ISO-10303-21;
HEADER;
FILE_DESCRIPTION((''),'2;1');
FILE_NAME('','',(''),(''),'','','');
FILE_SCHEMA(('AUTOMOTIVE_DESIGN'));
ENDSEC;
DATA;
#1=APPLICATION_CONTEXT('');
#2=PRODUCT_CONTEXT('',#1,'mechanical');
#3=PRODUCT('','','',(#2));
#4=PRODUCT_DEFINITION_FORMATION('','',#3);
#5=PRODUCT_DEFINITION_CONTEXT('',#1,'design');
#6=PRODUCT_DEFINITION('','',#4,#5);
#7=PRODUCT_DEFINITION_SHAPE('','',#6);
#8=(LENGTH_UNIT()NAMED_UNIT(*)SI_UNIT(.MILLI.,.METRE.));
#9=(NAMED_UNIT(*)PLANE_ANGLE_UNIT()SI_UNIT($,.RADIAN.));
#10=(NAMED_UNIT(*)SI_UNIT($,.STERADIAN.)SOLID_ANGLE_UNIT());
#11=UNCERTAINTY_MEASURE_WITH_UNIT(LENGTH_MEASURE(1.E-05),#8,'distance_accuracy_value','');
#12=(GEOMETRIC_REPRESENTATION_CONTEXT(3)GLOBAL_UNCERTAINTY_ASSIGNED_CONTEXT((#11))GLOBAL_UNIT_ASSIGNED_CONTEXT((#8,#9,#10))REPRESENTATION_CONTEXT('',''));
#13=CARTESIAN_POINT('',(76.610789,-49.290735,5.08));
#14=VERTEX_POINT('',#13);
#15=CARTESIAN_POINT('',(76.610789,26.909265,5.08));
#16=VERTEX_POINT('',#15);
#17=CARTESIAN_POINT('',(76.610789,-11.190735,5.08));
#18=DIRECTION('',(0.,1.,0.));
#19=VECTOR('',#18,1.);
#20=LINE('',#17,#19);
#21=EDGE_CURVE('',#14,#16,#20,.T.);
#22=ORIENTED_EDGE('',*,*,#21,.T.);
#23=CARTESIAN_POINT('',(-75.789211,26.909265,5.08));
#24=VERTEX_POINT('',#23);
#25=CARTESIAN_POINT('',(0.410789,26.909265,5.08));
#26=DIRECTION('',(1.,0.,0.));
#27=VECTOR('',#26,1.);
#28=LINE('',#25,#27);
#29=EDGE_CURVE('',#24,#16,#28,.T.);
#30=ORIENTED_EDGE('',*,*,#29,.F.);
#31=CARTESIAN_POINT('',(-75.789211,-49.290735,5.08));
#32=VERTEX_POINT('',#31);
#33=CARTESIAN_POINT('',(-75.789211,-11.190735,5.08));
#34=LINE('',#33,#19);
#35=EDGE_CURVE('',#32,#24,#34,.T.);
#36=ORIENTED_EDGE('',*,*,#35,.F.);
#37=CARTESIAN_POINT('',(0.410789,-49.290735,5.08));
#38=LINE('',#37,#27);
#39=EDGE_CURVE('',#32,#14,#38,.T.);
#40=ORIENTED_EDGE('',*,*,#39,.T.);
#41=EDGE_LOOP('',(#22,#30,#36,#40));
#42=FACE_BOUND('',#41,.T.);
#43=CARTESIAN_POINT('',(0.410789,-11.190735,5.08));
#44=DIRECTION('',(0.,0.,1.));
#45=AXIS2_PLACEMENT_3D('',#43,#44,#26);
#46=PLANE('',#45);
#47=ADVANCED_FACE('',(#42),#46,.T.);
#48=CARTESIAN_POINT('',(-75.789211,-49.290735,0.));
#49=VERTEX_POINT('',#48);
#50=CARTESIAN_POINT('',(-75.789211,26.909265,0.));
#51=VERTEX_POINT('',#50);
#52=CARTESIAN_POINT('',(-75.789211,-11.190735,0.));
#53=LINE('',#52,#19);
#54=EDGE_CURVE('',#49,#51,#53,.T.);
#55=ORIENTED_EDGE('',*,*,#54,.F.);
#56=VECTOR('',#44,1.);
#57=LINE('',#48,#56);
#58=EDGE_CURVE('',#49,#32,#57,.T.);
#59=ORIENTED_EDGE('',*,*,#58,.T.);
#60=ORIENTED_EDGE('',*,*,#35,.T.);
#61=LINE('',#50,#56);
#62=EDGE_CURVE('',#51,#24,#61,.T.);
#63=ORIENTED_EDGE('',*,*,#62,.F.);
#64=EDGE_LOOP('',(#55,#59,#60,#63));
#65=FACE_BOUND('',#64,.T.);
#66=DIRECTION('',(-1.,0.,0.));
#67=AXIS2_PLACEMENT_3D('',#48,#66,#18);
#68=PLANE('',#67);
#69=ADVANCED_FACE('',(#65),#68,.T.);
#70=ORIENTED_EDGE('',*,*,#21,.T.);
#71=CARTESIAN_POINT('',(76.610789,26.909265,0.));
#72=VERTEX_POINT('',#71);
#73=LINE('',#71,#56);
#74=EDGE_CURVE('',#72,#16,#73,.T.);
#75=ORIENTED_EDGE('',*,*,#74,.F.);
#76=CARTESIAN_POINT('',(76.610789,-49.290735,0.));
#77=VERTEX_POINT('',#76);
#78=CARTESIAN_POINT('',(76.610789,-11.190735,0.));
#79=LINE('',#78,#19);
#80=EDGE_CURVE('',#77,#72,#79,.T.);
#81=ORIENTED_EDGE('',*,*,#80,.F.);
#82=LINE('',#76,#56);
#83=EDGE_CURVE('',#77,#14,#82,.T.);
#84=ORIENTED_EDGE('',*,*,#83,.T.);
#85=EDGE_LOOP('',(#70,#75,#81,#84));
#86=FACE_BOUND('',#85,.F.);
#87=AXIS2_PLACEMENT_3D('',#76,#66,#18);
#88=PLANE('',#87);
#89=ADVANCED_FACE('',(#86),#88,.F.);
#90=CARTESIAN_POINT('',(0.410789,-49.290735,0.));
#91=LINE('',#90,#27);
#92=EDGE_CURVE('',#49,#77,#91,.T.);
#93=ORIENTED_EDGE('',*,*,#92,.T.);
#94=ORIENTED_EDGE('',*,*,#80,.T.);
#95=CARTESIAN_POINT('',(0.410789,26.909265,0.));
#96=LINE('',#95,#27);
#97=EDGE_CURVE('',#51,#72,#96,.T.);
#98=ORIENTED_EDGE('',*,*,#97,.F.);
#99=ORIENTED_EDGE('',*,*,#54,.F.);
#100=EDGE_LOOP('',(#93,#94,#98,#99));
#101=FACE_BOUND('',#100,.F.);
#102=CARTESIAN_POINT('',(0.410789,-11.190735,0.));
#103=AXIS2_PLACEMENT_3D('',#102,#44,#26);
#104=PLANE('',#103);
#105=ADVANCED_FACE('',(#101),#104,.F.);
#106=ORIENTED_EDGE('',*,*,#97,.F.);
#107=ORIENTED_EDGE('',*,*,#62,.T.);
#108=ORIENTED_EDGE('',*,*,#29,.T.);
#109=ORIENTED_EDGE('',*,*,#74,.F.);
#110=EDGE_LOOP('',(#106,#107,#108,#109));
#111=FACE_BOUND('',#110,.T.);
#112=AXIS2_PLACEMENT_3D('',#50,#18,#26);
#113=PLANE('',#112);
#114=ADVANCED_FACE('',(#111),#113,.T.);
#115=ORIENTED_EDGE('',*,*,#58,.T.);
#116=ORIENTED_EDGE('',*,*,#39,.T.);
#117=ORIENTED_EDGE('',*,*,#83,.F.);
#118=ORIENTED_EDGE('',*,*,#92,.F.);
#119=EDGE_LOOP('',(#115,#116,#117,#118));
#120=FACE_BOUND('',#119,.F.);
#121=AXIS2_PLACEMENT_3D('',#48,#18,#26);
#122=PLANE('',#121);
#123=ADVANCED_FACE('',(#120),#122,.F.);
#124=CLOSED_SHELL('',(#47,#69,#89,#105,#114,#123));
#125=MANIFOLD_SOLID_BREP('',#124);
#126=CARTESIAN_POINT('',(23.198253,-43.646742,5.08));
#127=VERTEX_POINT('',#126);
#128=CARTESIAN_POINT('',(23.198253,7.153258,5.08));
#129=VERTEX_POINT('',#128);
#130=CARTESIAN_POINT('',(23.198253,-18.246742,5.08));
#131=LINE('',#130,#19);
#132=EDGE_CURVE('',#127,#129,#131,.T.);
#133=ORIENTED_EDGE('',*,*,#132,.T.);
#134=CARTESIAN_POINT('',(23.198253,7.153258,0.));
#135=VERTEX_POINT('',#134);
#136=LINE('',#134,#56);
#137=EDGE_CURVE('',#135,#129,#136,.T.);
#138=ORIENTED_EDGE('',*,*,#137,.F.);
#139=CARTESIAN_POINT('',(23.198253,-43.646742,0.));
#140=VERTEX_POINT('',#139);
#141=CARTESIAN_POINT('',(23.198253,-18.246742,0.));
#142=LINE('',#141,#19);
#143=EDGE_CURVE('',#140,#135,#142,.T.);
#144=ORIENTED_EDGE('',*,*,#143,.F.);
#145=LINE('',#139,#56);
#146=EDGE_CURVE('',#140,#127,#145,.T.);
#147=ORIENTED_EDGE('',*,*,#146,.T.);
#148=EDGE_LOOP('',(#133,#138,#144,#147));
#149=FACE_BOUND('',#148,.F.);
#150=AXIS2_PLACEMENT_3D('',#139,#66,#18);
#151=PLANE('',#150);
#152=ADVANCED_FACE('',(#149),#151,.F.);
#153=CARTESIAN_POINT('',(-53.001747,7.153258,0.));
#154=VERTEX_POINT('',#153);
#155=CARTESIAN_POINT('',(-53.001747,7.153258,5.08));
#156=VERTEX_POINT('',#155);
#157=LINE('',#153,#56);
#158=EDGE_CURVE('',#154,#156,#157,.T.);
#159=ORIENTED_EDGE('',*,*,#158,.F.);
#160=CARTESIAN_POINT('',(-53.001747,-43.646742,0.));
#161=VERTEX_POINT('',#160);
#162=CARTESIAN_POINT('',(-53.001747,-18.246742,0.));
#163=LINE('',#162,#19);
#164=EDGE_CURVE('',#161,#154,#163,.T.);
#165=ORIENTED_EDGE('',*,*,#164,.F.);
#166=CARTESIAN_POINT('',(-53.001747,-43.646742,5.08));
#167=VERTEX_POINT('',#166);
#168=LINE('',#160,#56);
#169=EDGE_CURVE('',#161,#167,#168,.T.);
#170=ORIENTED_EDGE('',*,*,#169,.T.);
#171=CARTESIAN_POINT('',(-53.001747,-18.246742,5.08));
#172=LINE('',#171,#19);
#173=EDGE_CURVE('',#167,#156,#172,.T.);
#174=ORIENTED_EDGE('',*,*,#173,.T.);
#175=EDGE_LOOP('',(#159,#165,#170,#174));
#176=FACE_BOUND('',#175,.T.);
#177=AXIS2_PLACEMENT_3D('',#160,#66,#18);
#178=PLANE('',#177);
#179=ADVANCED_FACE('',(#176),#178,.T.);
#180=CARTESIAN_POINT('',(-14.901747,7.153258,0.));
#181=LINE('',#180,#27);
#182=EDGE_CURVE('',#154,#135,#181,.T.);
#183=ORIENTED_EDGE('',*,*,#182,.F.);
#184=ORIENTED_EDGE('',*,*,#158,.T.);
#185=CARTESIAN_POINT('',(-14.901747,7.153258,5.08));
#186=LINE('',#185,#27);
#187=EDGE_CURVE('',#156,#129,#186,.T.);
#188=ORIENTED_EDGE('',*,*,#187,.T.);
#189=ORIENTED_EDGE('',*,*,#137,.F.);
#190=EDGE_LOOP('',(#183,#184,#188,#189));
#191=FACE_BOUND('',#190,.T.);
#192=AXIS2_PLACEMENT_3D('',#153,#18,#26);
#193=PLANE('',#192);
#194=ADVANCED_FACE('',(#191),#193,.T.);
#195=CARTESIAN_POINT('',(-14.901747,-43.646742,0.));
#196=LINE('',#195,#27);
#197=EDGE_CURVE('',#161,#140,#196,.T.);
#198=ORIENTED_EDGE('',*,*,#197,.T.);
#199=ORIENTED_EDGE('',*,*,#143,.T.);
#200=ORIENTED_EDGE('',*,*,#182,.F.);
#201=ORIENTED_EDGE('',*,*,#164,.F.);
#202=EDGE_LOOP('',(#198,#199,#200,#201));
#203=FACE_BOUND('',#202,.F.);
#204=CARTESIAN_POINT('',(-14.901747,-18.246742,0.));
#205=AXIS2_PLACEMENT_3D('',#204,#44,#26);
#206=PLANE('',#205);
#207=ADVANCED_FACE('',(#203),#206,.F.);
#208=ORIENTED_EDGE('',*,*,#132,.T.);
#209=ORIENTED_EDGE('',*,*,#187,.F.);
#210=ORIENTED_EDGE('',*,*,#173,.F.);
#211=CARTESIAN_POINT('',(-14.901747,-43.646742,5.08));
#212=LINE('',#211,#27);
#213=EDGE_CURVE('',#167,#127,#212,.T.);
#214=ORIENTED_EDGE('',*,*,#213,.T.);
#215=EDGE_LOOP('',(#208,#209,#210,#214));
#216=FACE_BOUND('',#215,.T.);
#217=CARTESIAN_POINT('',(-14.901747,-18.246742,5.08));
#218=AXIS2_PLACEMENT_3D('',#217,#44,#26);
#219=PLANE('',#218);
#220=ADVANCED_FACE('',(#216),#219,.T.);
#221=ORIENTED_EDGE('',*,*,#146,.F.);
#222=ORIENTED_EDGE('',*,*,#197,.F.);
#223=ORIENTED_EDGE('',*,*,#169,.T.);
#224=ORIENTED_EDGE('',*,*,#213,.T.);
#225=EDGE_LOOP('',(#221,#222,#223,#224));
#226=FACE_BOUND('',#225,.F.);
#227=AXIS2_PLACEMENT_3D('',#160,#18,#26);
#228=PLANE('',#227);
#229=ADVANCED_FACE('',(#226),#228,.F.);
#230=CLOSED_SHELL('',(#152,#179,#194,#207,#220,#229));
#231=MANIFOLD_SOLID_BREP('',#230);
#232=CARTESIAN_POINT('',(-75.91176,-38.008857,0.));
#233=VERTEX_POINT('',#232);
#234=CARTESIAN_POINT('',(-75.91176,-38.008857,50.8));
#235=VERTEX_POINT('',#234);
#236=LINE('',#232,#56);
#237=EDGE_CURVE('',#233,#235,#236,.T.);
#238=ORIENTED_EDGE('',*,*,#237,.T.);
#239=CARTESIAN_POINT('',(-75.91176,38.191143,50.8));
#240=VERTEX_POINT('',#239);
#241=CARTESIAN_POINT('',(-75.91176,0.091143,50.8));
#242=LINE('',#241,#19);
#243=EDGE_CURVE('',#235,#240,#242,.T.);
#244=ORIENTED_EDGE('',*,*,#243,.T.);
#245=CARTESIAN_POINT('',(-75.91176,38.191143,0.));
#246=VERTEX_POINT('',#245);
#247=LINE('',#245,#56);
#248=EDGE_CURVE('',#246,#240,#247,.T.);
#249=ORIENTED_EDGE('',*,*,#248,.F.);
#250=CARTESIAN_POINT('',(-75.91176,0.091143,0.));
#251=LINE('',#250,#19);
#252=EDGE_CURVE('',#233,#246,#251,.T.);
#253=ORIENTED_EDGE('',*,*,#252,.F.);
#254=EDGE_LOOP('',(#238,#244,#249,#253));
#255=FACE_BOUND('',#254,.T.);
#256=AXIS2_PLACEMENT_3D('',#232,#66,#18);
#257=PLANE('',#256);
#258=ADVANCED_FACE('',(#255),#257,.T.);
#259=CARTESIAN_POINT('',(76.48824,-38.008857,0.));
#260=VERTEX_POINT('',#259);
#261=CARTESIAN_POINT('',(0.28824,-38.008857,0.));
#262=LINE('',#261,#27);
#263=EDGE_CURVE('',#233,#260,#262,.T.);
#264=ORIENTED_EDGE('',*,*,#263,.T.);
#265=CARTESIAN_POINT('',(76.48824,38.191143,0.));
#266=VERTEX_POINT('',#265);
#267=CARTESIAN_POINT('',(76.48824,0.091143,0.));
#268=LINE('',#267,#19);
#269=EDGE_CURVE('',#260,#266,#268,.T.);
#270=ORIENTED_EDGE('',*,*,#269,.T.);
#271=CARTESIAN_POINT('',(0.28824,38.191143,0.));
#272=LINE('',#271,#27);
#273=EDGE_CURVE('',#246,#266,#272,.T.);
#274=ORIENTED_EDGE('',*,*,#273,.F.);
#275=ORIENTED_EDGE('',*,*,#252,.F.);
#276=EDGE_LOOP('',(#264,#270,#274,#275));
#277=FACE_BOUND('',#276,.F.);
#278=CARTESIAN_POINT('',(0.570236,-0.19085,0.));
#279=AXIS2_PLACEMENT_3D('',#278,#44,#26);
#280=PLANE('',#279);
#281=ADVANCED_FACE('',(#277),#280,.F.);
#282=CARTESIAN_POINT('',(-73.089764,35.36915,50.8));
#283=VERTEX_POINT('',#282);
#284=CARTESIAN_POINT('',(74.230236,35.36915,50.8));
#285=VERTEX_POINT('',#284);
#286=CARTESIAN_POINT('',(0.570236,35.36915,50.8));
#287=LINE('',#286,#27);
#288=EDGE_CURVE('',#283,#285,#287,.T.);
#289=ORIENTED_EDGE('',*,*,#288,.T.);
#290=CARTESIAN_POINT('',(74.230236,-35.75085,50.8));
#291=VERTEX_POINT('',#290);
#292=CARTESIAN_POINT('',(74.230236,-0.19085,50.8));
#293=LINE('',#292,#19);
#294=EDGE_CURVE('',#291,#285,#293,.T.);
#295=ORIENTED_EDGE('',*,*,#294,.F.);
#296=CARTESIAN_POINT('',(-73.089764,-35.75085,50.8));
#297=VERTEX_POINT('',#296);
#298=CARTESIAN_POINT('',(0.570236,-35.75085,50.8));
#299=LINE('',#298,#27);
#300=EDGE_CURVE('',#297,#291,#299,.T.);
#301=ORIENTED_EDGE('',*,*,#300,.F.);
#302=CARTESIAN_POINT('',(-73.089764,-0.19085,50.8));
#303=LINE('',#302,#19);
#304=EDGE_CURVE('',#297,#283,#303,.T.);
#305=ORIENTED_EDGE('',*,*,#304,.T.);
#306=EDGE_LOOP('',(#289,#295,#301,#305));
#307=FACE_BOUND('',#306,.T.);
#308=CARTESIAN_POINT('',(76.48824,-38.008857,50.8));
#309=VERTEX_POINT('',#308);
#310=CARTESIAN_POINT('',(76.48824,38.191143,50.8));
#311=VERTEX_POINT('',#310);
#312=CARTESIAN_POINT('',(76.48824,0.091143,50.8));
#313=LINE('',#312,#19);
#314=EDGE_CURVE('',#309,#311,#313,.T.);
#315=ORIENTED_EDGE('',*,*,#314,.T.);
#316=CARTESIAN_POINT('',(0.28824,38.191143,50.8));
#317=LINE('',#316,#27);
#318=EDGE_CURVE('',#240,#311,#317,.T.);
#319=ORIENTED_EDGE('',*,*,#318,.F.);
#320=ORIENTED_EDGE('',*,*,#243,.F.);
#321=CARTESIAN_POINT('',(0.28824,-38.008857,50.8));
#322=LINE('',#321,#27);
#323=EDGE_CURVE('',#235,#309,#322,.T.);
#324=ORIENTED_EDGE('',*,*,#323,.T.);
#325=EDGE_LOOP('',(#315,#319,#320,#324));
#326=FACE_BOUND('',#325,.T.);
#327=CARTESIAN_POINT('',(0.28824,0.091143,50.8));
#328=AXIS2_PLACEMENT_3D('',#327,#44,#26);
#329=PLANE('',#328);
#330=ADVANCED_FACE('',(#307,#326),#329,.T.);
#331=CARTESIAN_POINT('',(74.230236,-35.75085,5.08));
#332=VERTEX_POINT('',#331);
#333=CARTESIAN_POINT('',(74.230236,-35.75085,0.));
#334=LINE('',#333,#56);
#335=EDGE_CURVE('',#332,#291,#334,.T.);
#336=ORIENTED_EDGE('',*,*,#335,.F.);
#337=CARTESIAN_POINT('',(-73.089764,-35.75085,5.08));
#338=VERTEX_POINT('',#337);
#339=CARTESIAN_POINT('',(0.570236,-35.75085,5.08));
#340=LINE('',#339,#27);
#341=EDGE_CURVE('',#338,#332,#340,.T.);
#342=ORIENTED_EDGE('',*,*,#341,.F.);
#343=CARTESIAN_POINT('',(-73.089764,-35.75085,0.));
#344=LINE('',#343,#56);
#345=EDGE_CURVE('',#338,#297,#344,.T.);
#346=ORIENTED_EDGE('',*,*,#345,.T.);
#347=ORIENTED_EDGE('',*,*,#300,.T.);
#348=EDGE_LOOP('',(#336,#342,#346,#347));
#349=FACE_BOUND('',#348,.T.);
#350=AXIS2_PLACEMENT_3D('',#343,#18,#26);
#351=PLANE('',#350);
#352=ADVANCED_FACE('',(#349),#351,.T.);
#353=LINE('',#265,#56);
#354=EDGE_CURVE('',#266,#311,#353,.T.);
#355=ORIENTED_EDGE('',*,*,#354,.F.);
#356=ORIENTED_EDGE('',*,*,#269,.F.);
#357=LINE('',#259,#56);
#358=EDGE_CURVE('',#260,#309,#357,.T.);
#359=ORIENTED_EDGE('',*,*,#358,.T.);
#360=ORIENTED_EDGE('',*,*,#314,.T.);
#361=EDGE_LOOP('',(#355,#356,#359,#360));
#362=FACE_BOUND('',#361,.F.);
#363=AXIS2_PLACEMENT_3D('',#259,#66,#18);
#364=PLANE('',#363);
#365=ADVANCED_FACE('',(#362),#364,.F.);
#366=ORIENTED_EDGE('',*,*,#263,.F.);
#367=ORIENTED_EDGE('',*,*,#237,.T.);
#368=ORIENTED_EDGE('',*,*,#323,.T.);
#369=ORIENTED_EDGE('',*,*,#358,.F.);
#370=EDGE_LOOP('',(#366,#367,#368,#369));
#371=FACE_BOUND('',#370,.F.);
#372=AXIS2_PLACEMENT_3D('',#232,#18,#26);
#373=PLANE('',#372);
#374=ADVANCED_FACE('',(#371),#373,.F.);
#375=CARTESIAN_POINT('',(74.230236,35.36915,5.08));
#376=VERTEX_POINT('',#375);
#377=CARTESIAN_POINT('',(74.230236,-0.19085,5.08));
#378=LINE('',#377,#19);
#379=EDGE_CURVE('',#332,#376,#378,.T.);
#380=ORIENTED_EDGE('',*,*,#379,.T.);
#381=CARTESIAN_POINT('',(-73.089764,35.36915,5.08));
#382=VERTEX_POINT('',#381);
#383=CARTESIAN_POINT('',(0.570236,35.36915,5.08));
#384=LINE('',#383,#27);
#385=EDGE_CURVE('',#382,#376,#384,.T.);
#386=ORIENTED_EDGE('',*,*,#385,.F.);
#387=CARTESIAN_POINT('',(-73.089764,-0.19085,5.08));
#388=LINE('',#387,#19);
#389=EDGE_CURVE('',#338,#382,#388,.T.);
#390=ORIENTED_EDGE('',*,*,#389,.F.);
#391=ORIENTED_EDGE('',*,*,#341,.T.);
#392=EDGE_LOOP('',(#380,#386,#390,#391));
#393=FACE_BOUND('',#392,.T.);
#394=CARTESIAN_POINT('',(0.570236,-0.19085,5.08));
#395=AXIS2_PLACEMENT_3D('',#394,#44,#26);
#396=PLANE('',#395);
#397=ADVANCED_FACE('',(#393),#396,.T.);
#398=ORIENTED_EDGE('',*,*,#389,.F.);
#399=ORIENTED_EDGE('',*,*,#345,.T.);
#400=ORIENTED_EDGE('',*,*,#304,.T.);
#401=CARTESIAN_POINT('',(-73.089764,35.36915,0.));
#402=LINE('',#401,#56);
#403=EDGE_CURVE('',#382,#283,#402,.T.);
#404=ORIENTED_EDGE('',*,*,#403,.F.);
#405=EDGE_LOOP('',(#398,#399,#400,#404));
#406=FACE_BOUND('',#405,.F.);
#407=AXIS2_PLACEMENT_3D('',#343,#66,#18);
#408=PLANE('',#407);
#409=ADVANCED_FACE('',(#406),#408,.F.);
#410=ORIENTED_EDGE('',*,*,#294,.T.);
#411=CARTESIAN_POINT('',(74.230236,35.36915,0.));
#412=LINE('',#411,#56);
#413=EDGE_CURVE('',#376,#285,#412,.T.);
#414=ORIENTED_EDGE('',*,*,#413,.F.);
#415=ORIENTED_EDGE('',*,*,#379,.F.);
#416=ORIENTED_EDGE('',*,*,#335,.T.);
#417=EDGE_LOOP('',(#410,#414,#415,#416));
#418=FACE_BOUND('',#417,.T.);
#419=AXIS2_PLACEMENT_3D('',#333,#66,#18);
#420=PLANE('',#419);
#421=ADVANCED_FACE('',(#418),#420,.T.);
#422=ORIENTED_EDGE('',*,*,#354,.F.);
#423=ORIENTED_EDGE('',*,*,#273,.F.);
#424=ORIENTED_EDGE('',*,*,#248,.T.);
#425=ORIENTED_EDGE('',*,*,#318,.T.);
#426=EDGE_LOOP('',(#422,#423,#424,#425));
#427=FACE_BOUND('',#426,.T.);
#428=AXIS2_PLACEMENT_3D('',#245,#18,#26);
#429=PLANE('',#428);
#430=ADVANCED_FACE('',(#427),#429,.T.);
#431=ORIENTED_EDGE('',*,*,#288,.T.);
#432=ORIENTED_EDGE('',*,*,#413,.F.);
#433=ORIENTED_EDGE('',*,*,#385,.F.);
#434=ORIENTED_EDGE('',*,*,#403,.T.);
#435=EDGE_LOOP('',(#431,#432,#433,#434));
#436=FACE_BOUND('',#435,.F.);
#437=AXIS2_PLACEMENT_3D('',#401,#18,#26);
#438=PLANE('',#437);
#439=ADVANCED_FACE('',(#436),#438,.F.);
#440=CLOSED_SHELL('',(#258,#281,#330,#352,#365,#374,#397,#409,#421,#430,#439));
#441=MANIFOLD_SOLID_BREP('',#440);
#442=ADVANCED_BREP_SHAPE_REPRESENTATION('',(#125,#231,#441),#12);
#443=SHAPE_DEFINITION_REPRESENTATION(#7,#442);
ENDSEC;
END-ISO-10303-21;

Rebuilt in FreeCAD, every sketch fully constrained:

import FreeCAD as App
import Part
import Sketcher
Q = App.Units.Quantity


def add_polygon(sketch, points):
    """Adds a closed chain of lines whose ends are joined by coincident constraints."""
    first, n = sketch.GeometryCount, len(points)
    for a, b in zip(points, points[1:] + points[:1]):
        sketch.addGeometry(Part.LineSegment(App.Vector(*a, 0), App.Vector(*b, 0)), False)
    for i in range(n):
        sketch.addConstraint(Sketcher.Constraint("Coincident", first + i, 2, first + (i + 1) % n, 1))

doc = App.newDocument("Part")
body = doc.addObject("PartDesign::Body", "Body")

sketch1 = doc.addObject("Sketcher::SketchObject", "Sketch")
body.addObject(sketch1)
sketch1.AttachmentSupport = (doc.XY_Plane, [""])
sketch1.MapMode = "FlatFace"
add_polygon(sketch1, [(-76, 38), (-76, -38), (76, -38), (76, 38)])
add_polygon(sketch1, [(74, -36), (-73, -36), (-73, 35), (74, 35)])
sketch1.addConstraint([
    Sketcher.Constraint("Vertical", 0),
    Sketcher.Constraint("Horizontal", 1),
    Sketcher.Constraint("Vertical", 2),
    Sketcher.Constraint("Horizontal", 3),
    Sketcher.Constraint("Horizontal", 4),
    Sketcher.Constraint("Vertical", 5),
    Sketcher.Constraint("Horizontal", 6),
    Sketcher.Constraint("Vertical", 7),
    Sketcher.Constraint("DistanceX", 1, 1, 1, 2, Q("6 in")),
    Sketcher.Constraint("DistanceY", 0, 2, 0, 1, Q("3 in")),
    Sketcher.Constraint("DistanceX", 4, 2, 4, 1, Q("5.8 in")),
    Sketcher.Constraint("DistanceY", 5, 1, 5, 2, Q("2.8 in")),
    Sketcher.Constraint("DistanceX", 0, 2, -1, 1, 75.91176),
    Sketcher.Constraint("DistanceY", 4, 2, -1, 1, 35.75085),
    Sketcher.Constraint("DistanceY", 0, 2, -1, 1, 38.008857),
    Sketcher.Constraint("DistanceX", 4, 2, -1, 1, 73.089764),
])
pad1 = doc.addObject("PartDesign::Pad", "Pad")
body.addObject(pad1)
pad1.Profile = sketch1
pad1.Length = Q("2 in")

sketch2 = doc.addObject("Sketcher::SketchObject", "Sketch001")
body.addObject(sketch2)
sketch2.AttachmentSupport = (doc.XY_Plane, [""])
sketch2.MapMode = "FlatFace"
add_polygon(sketch2, [(-73, 35), (-73, -36), (74, -36), (74, 35)])
sketch2.addConstraint([
    Sketcher.Constraint("Vertical", 0),
    Sketcher.Constraint("Horizontal", 1),
    Sketcher.Constraint("Vertical", 2),
    Sketcher.Constraint("Horizontal", 3),
    Sketcher.Constraint("DistanceX", 1, 1, 1, 2, Q("5.8 in")),
    Sketcher.Constraint("DistanceY", 0, 2, 0, 1, Q("2.8 in")),
    Sketcher.Constraint("DistanceY", 0, 2, -1, 1, 35.75085),
    Sketcher.Constraint("DistanceX", 0, 2, -1, 1, 73.089764),
])
pad2 = doc.addObject("PartDesign::Pad", "Pad001")
body.addObject(pad2)
pad2.Profile = sketch2
pad2.Length = Q("0.2 in")
body2 = doc.addObject("PartDesign::Body", "Body001")

sketch3 = doc.addObject("Sketcher::SketchObject", "Sketch002")
body2.addObject(sketch3)
sketch3.AttachmentSupport = (doc.getObject("XY_Plane001"), [""])
sketch3.MapMode = "FlatFace"
add_polygon(sketch3, [(-76, 27), (-76, -49), (77, -49), (77, 27)])
sketch3.addConstraint([
    Sketcher.Constraint("Vertical", 0),
    Sketcher.Constraint("Horizontal", 1),
    Sketcher.Constraint("Vertical", 2),
    Sketcher.Constraint("Horizontal", 3),
    Sketcher.Constraint("DistanceX", 1, 1, 1, 2, Q("6 in")),
    Sketcher.Constraint("DistanceY", 0, 2, 0, 1, Q("3 in")),
    Sketcher.Constraint("DistanceX", 0, 2, -1, 1, 75.789211),
    Sketcher.Constraint("DistanceY", 0, 2, -1, 1, 49.290735),
])
pad3 = doc.addObject("PartDesign::Pad", "Pad002")
body2.addObject(pad3)
pad3.Profile = sketch3
pad3.Length = Q("0.2 in")
body3 = doc.addObject("PartDesign::Body", "Body002")

sketch4 = doc.addObject("Sketcher::SketchObject", "Sketch003")
body3.addObject(sketch4)
sketch4.AttachmentSupport = (doc.getObject("XY_Plane002"), [""])
sketch4.MapMode = "FlatFace"
add_polygon(sketch4, [(-53, 7), (-53, -44), (23, -44), (23, 7)])
sketch4.addConstraint([
    Sketcher.Constraint("Vertical", 0),
    Sketcher.Constraint("Horizontal", 1),
    Sketcher.Constraint("Vertical", 2),
    Sketcher.Constraint("Horizontal", 3),
    Sketcher.Constraint("DistanceX", 1, 1, 1, 2, Q("3 in")),
    Sketcher.Constraint("DistanceY", 0, 2, 0, 1, Q("2 in")),
    Sketcher.Constraint("DistanceX", 0, 2, -1, 1, 53.001747),
    Sketcher.Constraint("DistanceY", 0, 2, -1, 1, 43.646742),
])
pad4 = doc.addObject("PartDesign::Pad", "Pad003")
body3.addObject(pad4)
pad4.Profile = sketch4
pad4.Length = Q("0.2 in")

doc.recompute()
